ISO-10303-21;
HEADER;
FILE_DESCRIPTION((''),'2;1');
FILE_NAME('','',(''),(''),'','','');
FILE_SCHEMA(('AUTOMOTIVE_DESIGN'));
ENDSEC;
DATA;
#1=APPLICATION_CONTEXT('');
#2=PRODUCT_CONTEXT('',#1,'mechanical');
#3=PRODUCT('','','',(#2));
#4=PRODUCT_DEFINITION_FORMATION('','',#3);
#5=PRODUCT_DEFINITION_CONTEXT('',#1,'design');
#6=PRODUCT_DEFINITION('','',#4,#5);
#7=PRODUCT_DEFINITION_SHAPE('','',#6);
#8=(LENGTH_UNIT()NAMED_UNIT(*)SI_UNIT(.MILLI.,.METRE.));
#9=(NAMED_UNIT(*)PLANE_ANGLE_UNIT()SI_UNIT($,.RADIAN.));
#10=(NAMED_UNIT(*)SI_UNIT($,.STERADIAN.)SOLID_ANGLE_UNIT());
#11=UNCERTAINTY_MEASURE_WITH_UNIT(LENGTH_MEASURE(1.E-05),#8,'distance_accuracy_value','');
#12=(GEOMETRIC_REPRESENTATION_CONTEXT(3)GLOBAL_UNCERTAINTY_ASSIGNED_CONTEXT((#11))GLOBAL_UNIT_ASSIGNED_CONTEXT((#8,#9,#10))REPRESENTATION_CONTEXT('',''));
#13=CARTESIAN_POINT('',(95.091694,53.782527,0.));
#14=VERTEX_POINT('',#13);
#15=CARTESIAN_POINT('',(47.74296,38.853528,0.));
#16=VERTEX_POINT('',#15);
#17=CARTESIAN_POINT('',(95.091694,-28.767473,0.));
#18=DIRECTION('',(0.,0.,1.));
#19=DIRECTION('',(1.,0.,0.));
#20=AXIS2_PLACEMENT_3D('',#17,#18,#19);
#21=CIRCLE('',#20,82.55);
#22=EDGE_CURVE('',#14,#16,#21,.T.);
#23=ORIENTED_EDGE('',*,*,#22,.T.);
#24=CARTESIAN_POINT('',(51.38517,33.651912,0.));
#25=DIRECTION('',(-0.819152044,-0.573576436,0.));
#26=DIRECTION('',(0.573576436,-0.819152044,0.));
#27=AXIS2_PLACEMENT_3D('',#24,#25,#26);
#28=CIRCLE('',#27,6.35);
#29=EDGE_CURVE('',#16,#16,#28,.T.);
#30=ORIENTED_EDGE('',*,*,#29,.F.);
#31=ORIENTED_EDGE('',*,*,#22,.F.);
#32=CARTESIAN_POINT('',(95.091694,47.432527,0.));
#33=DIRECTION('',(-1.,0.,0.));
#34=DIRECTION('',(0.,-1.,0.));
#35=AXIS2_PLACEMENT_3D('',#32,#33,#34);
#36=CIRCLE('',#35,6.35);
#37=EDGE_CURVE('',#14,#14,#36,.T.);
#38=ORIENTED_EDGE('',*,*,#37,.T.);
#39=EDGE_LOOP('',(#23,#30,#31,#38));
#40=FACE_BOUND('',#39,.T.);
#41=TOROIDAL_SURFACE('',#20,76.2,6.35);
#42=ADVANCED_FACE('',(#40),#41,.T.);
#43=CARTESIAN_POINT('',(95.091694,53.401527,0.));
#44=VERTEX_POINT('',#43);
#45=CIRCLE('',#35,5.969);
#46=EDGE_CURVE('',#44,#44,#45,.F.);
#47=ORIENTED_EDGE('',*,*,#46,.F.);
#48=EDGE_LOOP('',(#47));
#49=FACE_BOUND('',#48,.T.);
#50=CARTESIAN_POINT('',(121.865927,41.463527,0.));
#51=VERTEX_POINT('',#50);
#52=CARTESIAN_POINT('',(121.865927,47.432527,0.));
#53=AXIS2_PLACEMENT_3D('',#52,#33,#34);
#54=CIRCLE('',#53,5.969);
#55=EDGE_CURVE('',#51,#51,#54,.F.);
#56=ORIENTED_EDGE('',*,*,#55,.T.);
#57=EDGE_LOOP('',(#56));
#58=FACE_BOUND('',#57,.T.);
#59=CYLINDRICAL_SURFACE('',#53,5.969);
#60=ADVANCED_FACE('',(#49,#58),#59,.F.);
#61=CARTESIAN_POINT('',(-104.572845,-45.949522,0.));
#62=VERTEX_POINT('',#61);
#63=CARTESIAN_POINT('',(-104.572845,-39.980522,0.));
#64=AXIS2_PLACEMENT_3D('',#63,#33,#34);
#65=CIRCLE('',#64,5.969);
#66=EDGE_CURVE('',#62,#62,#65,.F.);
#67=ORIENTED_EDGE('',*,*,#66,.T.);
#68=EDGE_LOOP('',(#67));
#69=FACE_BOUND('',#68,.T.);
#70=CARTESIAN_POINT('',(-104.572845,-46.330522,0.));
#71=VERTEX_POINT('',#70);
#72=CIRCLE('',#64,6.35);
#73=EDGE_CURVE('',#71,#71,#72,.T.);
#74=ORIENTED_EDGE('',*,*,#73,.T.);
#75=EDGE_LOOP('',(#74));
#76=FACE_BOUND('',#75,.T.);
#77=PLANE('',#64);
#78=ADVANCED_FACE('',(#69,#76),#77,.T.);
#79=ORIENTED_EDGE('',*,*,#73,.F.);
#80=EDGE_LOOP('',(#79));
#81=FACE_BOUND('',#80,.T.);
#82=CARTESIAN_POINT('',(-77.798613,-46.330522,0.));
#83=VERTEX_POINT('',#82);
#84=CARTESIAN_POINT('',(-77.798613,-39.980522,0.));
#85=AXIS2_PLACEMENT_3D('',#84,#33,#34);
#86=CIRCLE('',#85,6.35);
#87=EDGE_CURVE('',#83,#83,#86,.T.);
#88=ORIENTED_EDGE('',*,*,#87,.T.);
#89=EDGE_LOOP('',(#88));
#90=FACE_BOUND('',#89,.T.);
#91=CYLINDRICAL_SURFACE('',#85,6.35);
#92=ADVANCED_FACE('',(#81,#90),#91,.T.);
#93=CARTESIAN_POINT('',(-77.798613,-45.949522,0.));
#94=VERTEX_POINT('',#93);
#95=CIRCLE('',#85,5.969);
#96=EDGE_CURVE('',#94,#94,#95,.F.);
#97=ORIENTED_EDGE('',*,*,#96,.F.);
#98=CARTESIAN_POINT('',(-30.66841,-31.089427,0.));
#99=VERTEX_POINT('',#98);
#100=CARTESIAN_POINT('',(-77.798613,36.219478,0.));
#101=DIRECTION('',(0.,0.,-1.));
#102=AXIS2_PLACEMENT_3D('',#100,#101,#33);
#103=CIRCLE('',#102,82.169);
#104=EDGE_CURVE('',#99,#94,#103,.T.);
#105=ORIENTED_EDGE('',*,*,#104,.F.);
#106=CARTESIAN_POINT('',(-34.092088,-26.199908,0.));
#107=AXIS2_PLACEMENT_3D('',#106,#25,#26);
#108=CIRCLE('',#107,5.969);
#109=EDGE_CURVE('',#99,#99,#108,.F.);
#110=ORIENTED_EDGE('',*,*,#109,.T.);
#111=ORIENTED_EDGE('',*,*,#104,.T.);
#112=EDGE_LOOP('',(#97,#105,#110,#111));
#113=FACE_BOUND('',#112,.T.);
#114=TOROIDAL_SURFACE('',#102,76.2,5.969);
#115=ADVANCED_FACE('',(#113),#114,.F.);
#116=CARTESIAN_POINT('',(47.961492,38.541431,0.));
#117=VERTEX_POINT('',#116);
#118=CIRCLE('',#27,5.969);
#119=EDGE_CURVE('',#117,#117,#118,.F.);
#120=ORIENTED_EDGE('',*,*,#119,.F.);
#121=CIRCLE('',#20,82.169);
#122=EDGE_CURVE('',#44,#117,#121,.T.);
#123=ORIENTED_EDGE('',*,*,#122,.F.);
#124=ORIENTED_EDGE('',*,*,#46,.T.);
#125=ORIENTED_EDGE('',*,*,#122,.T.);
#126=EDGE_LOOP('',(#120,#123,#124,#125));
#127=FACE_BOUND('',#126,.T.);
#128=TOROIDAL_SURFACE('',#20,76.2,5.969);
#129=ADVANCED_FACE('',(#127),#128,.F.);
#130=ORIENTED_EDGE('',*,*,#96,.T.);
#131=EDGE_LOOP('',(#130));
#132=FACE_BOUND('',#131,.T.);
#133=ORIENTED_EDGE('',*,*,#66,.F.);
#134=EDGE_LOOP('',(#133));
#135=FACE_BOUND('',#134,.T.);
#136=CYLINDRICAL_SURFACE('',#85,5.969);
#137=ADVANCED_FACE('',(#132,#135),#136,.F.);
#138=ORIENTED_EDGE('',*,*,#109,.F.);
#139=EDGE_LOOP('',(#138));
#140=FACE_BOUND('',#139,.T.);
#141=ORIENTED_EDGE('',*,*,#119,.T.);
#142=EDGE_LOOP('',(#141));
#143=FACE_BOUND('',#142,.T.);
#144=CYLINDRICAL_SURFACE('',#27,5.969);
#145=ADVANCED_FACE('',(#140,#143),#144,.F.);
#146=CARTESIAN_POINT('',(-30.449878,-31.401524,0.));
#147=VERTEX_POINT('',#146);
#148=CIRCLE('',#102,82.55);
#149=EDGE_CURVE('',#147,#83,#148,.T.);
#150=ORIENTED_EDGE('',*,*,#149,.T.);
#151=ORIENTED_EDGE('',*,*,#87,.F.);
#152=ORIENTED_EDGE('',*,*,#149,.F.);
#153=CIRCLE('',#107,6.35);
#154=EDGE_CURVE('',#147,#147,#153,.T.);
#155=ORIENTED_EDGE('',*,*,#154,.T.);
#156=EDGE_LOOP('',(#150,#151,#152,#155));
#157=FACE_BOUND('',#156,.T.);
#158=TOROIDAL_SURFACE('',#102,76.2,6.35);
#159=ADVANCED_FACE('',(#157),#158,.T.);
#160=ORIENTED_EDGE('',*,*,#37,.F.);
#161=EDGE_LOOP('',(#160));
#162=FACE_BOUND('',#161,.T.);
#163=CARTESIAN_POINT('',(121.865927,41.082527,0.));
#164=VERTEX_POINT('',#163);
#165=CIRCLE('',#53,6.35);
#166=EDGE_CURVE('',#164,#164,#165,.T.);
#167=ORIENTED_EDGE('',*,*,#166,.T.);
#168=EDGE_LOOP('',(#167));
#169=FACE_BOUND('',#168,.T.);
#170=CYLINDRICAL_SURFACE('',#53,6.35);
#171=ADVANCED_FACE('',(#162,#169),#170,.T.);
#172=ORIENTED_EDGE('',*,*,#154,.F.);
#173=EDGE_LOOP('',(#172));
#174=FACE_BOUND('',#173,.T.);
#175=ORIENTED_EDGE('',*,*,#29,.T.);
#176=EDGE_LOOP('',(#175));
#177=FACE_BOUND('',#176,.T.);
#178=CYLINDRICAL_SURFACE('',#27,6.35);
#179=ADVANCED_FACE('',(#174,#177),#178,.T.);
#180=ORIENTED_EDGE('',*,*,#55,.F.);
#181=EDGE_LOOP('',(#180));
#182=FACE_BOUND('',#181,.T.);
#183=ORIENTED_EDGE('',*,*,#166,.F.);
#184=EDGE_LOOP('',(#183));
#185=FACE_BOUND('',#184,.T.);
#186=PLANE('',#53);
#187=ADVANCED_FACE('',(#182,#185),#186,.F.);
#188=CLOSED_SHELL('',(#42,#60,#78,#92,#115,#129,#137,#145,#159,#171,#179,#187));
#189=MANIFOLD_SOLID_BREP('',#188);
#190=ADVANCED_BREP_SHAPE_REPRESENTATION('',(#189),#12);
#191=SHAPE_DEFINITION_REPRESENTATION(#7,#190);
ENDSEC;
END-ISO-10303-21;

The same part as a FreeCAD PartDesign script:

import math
import FreeCAD as App
import Part
import Sketcher
from FreeCAD import Vector
Q = App.Units.Quantity

doc = App.newDocument("Part")
body = doc.addObject("PartDesign::Body", "Body")

sketch1 = doc.addObject("Sketcher::SketchObject", "Sketch")
body.addObject(sketch1)
sketch1.AttachmentSupport = (doc.YZ_Plane, [""])
sketch1.MapMode = "FlatFace"
sketch1.AttachmentOffset = App.Placement(Vector(0, 0, 121.865927), App.Rotation())
sketch1.addGeometry([
    Part.Circle(Vector(47.432527, 0, 0), Vector(0, 0, 1), 6.35),
    Part.Circle(Vector(47.432527, 0, 0), Vector(0, 0, 1), 5.969),
], False)
sketch1.addConstraint([
    Sketcher.Constraint("Coincident", 1, 3, 0, 3),
    Sketcher.Constraint("PointOnObject", 0, 3, -1),
    Sketcher.Constraint("Diameter", 0, Q("0.5 in")),
    Sketcher.Constraint("Diameter", 1, Q("0.47 in")),
    Sketcher.Constraint("DistanceX", -1, 1, 0, 3, 47.432527),
])

sketch2 = doc.addObject("Sketcher::SketchObject", "Sketch001")
body.addObject(sketch2)
sketch2.AttachmentSupport = (doc.XY_Plane, [""])
sketch2.MapMode = "FlatFace"
sketch2.addGeometry([
    Part.LineSegment(Vector(121.865927, 47.432527, 0), Vector(95.091694, 47.432527, 0)),
    Part.ArcOfCircle(Part.Circle(Vector(95.091694, -28.767473, 0), Vector(0, 0, 1), 76.2), math.radians(90), math.radians(125)),
    Part.LineSegment(Vector(51.38517, 33.651912, 0), Vector(-34.092088, -26.199908, 0)),
    Part.ArcOfCircle(Part.Circle(Vector(-77.798613, 36.219478, 0), Vector(0, 0, 1), 76.2), math.radians(-90), math.radians(-55)),
    Part.LineSegment(Vector(-77.798613, -39.980522, 0), Vector(-104.572845, -39.980522, 0)),
], False)
sketch2.addConstraint([
    Sketcher.Constraint("Tangent", 0, 2, 1, 1),
    Sketcher.Constraint("Tangent", 1, 2, 2, 1),
    Sketcher.Constraint("Tangent", 2, 2, 3, 2),
    Sketcher.Constraint("Tangent", 3, 1, 4, 1),
    Sketcher.Constraint("Horizontal", 0),
    Sketcher.Constraint("Horizontal", 4),
    Sketcher.Constraint("Equal", 1, 3),
    Sketcher.Constraint("Equal", 0, 4),
    Sketcher.Constraint("Radius", 1, Q("3 in")),
    Sketcher.Constraint("Angle", 2, Q("-145 deg")),
    Sketcher.Constraint("DistanceX", 0, 2, 0, 1, 26.774232),
    Sketcher.Constraint("DistanceX", -1, 1, 1, 2, 51.38517),
    Sketcher.Constraint("DistanceX", 2, 2, -1, 1, 34.092088),
    Sketcher.Constraint("DistanceY", 2, 2, -1, 1, 26.199908),
])
doc.recompute()

additivepipe = doc.addObject("PartDesign::AdditivePipe", "AdditivePipe")
body.addObject(additivepipe)
additivepipe.Profile = sketch1
additivepipe.Spine = (sketch2, ["Edge1", "Edge2", "Edge3", "Edge4", "Edge5"])

doc.recompute()
